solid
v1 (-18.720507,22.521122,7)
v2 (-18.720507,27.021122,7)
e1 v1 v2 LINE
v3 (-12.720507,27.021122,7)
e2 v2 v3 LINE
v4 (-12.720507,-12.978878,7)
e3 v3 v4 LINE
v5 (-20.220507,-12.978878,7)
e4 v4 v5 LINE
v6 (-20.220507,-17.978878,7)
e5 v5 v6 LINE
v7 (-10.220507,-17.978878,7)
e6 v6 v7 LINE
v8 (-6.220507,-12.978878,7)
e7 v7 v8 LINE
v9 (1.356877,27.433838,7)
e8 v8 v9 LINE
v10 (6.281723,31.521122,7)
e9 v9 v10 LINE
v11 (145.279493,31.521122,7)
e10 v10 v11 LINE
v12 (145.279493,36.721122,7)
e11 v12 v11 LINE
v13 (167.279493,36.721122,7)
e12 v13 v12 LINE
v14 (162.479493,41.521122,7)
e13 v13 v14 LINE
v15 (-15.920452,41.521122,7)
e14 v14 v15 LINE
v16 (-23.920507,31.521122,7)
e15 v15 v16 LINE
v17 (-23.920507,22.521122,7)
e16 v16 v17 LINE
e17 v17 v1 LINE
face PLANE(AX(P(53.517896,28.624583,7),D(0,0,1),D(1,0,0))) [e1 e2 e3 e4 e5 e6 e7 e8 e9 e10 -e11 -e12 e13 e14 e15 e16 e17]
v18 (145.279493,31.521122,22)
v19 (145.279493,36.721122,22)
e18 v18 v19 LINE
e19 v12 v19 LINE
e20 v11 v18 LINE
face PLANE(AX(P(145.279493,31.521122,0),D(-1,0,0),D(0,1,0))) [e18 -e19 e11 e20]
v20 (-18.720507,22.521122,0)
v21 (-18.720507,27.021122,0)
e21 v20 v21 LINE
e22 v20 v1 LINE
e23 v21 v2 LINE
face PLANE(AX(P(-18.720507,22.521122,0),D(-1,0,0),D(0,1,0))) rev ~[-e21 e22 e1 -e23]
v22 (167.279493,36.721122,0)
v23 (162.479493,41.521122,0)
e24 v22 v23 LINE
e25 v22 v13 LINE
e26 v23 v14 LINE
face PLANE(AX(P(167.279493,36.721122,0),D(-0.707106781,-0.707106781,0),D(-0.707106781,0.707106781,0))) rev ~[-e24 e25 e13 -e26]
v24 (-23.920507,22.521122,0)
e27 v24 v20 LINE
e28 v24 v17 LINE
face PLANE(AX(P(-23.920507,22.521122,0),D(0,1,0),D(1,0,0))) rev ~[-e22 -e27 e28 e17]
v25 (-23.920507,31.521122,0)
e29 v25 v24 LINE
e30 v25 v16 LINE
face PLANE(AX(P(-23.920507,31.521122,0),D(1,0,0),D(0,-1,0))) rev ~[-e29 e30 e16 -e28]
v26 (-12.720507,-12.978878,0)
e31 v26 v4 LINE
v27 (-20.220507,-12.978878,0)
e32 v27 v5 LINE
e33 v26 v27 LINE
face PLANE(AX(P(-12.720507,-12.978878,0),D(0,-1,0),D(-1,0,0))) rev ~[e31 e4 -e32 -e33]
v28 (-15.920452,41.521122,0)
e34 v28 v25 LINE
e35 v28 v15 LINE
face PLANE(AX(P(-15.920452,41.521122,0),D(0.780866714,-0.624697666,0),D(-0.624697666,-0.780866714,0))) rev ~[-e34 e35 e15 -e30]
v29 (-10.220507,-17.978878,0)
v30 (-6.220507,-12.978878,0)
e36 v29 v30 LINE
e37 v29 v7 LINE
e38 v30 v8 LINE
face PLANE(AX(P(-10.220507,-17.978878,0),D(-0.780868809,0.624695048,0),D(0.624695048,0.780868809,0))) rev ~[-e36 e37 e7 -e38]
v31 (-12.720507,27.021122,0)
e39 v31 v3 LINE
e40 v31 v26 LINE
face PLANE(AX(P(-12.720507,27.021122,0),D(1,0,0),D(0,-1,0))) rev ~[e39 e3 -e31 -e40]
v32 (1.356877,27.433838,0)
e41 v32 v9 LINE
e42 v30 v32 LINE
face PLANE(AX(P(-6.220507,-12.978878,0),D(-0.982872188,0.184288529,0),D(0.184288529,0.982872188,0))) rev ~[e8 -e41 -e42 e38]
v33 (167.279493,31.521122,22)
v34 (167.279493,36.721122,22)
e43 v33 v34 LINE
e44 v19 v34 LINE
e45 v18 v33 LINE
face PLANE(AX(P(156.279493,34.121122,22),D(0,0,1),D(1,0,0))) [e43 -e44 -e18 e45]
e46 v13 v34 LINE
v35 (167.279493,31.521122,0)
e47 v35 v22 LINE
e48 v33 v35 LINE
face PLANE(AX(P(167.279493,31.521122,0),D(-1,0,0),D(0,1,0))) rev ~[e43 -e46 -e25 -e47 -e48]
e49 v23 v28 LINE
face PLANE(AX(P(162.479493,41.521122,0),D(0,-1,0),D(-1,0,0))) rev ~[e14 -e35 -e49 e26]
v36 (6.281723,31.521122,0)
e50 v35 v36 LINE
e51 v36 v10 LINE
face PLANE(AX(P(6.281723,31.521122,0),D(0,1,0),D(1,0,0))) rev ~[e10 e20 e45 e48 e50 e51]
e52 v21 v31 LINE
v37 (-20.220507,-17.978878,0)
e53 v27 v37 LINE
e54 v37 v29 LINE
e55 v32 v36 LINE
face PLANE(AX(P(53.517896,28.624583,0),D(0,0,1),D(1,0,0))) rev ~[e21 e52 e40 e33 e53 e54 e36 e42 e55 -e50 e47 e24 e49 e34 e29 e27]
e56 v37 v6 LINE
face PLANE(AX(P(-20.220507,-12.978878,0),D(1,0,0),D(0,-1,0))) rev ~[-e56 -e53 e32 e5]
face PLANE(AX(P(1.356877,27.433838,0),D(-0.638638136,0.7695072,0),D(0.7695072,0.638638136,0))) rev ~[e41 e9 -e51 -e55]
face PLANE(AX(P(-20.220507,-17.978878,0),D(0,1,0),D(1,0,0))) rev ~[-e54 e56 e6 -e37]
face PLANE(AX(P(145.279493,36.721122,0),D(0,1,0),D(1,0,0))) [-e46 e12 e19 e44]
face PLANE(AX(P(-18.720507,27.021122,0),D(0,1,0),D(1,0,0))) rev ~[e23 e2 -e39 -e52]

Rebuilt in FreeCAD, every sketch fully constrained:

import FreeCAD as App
import Part
import Sketcher

V = App.Vector
Q = App.Units.Quantity

doc = App.newDocument("Part")
body = doc.addObject("PartDesign::Body", "Body")

sketch1 = doc.addObject("Sketcher::SketchObject", "Sketch")
body.addObject(sketch1)
sketch1.AttachmentSupport = (doc.XY_Plane, [""])
sketch1.MapMode = "FlatFace"
sketch1.addGeometry(Part.LineSegment(V(-18.720507, 22.521122, 0), V(-18.720507, 27.021122, 0)), False)
sketch1.addGeometry(Part.LineSegment(V(-18.720507, 27.021122, 0), V(-12.720507, 27.021122, 0)), False)
sketch1.addGeometry(Part.LineSegment(V(-12.720507, 27.021122, 0), V(-12.720507, -12.978878, 0)), False)
sketch1.addGeometry(Part.LineSegment(V(-12.720507, -12.978878, 0), V(-20.220507, -12.978878, 0)), False)
sketch1.addGeometry(Part.LineSegment(V(-20.220507, -12.978878, 0), V(-20.220507, -17.978878, 0)), False)
sketch1.addGeometry(Part.LineSegment(V(-20.220507, -17.978878, 0), V(-10.220507, -17.978878, 0)), False)
sketch1.addGeometry(Part.LineSegment(V(-10.220507, -17.978878, 0), V(-6.220507, -12.978878, 0)), False)
sketch1.addGeometry(Part.LineSegment(V(-6.220507, -12.978878, 0), V(1.356877, 27.433838, 0)), False)
sketch1.addGeometry(Part.LineSegment(V(1.356877, 27.433838, 0), V(6.281723, 31.521122, 0)), False)
sketch1.addGeometry(Part.LineSegment(V(6.281723, 31.521122, 0), V(167.279493, 31.521122, 0)), False)
sketch1.addGeometry(Part.LineSegment(V(167.279493, 31.521122, 0), V(167.279493, 36.721122, 0)), False)
sketch1.addGeometry(Part.LineSegment(V(167.279493, 36.721122, 0), V(162.479493, 41.521122, 0)), False)
sketch1.addGeometry(Part.LineSegment(V(162.479493, 41.521122, 0), V(-15.920452, 41.521122, 0)), False)
sketch1.addGeometry(Part.LineSegment(V(-15.920452, 41.521122, 0), V(-23.920507, 31.521122, 0)), False)
sketch1.addGeometry(Part.LineSegment(V(-23.920507, 31.521122, 0), V(-23.920507, 22.521122, 0)), False)
sketch1.addGeometry(Part.LineSegment(V(-23.920507, 22.521122, 0), V(-18.720507, 22.521122, 0)), False)
sketch1.addConstraint(Sketcher.Constraint("Coincident", 0, 2, 1, 1))
sketch1.addConstraint(Sketcher.Constraint("Coincident", 1, 2, 2, 1))
sketch1.addConstraint(Sketcher.Constraint("Coincident", 2, 2, 3, 1))
sketch1.addConstraint(Sketcher.Constraint("Coincident", 3, 2, 4, 1))
sketch1.addConstraint(Sketcher.Constraint("Coincident", 4, 2, 5, 1))
sketch1.addConstraint(Sketcher.Constraint("Coincident", 5, 2, 6, 1))
sketch1.addConstraint(Sketcher.Constraint("Coincident", 6, 2, 7, 1))
sketch1.addConstraint(Sketcher.Constraint("Coincident", 7, 2, 8, 1))
sketch1.addConstraint(Sketcher.Constraint("Coincident", 8, 2, 9, 1))
sketch1.addConstraint(Sketcher.Constraint("Coincident", 9, 2, 10, 1))
sketch1.addConstraint(Sketcher.Constraint("Coincident", 10, 2, 11, 1))
sketch1.addConstraint(Sketcher.Constraint("Coincident", 11, 2, 12, 1))
sketch1.addConstraint(Sketcher.Constraint("Coincident", 12, 2, 13, 1))
sketch1.addConstraint(Sketcher.Constraint("Coincident", 13, 2, 14, 1))
sketch1.addConstraint(Sketcher.Constraint("Coincident", 14, 2, 15, 1))
sketch1.addConstraint(Sketcher.Constraint("Coincident", 15, 2, 0, 1))
sketch1.addConstraint(Sketcher.Constraint("Vertical", 0))
sketch1.addConstraint(Sketcher.Constraint("Horizontal", 1))
sketch1.addConstraint(Sketcher.Constraint("Vertical", 2))
sketch1.addConstraint(Sketcher.Constraint("Horizontal", 3))
sketch1.addConstraint(Sketcher.Constraint("Vertical", 4))
sketch1.addConstraint(Sketcher.Constraint("Horizontal", 5))
sketch1.addConstraint(Sketcher.Constraint("Horizontal", 9))
sketch1.addConstraint(Sketcher.Constraint("Vertical", 10))
sketch1.addConstraint(Sketcher.Constraint("Horizontal", 12))
sketch1.addConstraint(Sketcher.Constraint("Vertical", 14))
sketch1.addConstraint(Sketcher.Constraint("Horizontal", 15))
sketch1.addConstraint(Sketcher.Constraint("Horizontal", 3, 2, 6, 2))
sketch1.addConstraint(Sketcher.Constraint("Horizontal", 9, 2, 13, 2))
sketch1.addConstraint(Sketcher.Constraint("Equal", 15, 10))
sketch1.addConstraint(Sketcher.Constraint("DistanceX", 1, 1, 1, 2, 6.0))
sketch1.addConstraint(Sketcher.Constraint("DistanceX", 5, 1, 5, 2, 10.0))
sketch1.addConstraint(Sketcher.Constraint("DistanceY", 2, 2, 2, 1, 40.0))
sketch1.addConstraint(Sketcher.Constraint("DistanceY", 4, 2, 4, 1, 5.0))
sketch1.addConstraint(Sketcher.Constraint("DistanceY", 14, 2, 14, 1, 9.0))
sketch1.addConstraint(Sketcher.Constraint("Angle", 11, Q("135 deg")))
sketch1.addConstraint(Sketcher.Constraint("DistanceX", 3, 2, 3, 1, 7.5))
sketch1.addConstraint(Sketcher.Constraint("DistanceX", 15, 1, 15, 2, 5.2))
sketch1.addConstraint(Sketcher.Constraint("DistanceY", 0, 1, 0, 2, 4.5))
sketch1.addConstraint(Sketcher.Constraint("DistanceX", 5, 2, 6, 2, 4.0))
sketch1.addConstraint(Sketcher.Constraint("DistanceX", 1, 2, 9, 2, 180.0))
sketch1.addConstraint(Sketcher.Constraint("DistanceY", 9, 2, 11, 2, 10.0))
sketch1.addConstraint(Sketcher.Constraint("Distance", 8, 6.4))
sketch1.addConstraint(Sketcher.Constraint("Angle", 13, Q("-128.66 deg")))
sketch1.addConstraint(Sketcher.Constraint("DistanceX", 9, 1, 9, 2, 160.99777))
sketch1.addConstraint(Sketcher.Constraint("Distance", 7, 41.11696))
sketch1.addConstraint(Sketcher.Constraint("DistanceY", -1, 1, 0, 2, 27.021122))
sketch1.addConstraint(Sketcher.Constraint("DistanceX", 12, 2, -1, 1, 15.920452))
pad1 = doc.addObject("PartDesign::Pad", "Pad")
body.addObject(pad1)
pad1.Profile = sketch1
pad1.Length = 7

sketch2 = doc.addObject("Sketcher::SketchObject", "Sketch001")
body.addObject(sketch2)
sketch2.AttachmentSupport = (doc.XY_Plane, [""])
sketch2.MapMode = "FlatFace"
sketch2.addGeometry(Part.LineSegment(V(145.279493, 36.721122, 0), V(145.279493, 31.521122, 0)), False)
sketch2.addGeometry(Part.LineSegment(V(145.279493, 31.521122, 0), V(167.279493, 31.521122, 0)), False)
sketch2.addGeometry(Part.LineSegment(V(167.279493, 31.521122, 0), V(167.279493, 36.721122, 0)), False)
sketch2.addGeometry(Part.LineSegment(V(167.279493, 36.721122, 0), V(145.279493, 36.721122, 0)), False)
sketch2.addConstraint(Sketcher.Constraint("Coincident", 0, 2, 1, 1))
sketch2.addConstraint(Sketcher.Constraint("Coincident", 1, 2, 2, 1))
sketch2.addConstraint(Sketcher.Constraint("Coincident", 2, 2, 3, 1))
sketch2.addConstraint(Sketcher.Constraint("Coincident", 3, 2, 0, 1))
sketch2.addConstraint(Sketcher.Constraint("Vertical", 0))
sketch2.addConstraint(Sketcher.Constraint("Horizontal", 1))
sketch2.addConstraint(Sketcher.Constraint("Vertical", 2))
sketch2.addConstraint(Sketcher.Constraint("Horizontal", 3))
sketch2.addConstraint(Sketcher.Constraint("DistanceX", 1, 1, 1, 2, 22.0))
sketch2.addConstraint(Sketcher.Constraint("DistanceY", 0, 2, 0, 1, 5.2))
sketch2.addConstraint(Sketcher.Constraint("DistanceY", -1, 1, 0, 2, 31.521122))
sketch2.addConstraint(Sketcher.Constraint("DistanceX", -1, 1, 0, 2, 145.279493))
pad2 = doc.addObject("PartDesign::Pad", "Pad001")
body.addObject(pad2)
pad2.Profile = sketch2
pad2.Length = 22

doc.recompute()
